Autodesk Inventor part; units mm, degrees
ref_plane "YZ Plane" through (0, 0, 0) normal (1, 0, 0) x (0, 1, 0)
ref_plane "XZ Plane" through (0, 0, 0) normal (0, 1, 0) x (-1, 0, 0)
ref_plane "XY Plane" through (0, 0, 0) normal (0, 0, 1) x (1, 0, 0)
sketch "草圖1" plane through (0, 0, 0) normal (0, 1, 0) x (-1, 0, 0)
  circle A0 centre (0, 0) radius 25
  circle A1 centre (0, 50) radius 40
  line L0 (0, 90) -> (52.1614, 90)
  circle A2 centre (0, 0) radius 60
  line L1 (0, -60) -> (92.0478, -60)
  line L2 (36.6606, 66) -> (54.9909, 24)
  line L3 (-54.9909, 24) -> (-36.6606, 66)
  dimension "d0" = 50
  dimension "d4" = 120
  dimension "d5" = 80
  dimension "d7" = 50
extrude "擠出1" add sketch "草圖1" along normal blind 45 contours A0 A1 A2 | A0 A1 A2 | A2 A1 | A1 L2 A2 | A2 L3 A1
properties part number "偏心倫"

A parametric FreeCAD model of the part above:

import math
import FreeCAD as App
import Part
import Sketcher

V = App.Vector
Q = App.Units.Quantity

doc = App.newDocument("Part")
body = doc.addObject("PartDesign::Body", "Body")

sketch1 = body.newObject("Sketcher::SketchObject", "Sketch")
sketch1.AttachmentSupport = (doc.getObject("XZ_Plane"), [""])
sketch1.MapMode = "FlatFace"
sketch1.addGeometry([
    Part.LineSegment(V(-54.9909, 24, 0), V(-36.6606, 66, 0)),
    Part.ArcOfCircle(Part.Circle(V(0, 50, 0), V(0, 0, 1), 40), math.radians(23.578182), math.radians(156.421818)),
    Part.LineSegment(V(36.6606, 66, 0), V(54.9909, 24, 0)),
    Part.ArcOfCircle(Part.Circle(V(0, 0, 0), V(0, 0, 1), 60), math.radians(156.421818), math.radians(383.578182)),
    Part.Circle(V(0, 0, 0), V(0, 0, 1), 25),
], False)
sketch1.addConstraint([
    Sketcher.Constraint("Tangent", 0, 2, 1, 2),
    Sketcher.Constraint("Tangent", 1, 1, 2, 1),
    Sketcher.Constraint("Tangent", 2, 2, 3, 2),
    Sketcher.Constraint("Tangent", 3, 1, 0, 1),
    Sketcher.Constraint("Coincident", 3, 3, -1, 1),
    Sketcher.Constraint("Coincident", 4, 3, -1, 1),
    Sketcher.Constraint("PointOnObject", 1, 3, -2),
    Sketcher.Constraint("Diameter", 4, Q("50 mm")),
    Sketcher.Constraint("Radius", 1, Q("40 mm")),
    Sketcher.Constraint("Radius", 3, Q("60 mm")),
    Sketcher.Constraint("DistanceY", -1, 1, 1, 3, Q("50 mm")),
])
pad1 = body.newObject("PartDesign::Pad", "Pad")
pad1.Profile = sketch1
pad1.Length = 45
pad1.Reversed = True

doc.recompute()
